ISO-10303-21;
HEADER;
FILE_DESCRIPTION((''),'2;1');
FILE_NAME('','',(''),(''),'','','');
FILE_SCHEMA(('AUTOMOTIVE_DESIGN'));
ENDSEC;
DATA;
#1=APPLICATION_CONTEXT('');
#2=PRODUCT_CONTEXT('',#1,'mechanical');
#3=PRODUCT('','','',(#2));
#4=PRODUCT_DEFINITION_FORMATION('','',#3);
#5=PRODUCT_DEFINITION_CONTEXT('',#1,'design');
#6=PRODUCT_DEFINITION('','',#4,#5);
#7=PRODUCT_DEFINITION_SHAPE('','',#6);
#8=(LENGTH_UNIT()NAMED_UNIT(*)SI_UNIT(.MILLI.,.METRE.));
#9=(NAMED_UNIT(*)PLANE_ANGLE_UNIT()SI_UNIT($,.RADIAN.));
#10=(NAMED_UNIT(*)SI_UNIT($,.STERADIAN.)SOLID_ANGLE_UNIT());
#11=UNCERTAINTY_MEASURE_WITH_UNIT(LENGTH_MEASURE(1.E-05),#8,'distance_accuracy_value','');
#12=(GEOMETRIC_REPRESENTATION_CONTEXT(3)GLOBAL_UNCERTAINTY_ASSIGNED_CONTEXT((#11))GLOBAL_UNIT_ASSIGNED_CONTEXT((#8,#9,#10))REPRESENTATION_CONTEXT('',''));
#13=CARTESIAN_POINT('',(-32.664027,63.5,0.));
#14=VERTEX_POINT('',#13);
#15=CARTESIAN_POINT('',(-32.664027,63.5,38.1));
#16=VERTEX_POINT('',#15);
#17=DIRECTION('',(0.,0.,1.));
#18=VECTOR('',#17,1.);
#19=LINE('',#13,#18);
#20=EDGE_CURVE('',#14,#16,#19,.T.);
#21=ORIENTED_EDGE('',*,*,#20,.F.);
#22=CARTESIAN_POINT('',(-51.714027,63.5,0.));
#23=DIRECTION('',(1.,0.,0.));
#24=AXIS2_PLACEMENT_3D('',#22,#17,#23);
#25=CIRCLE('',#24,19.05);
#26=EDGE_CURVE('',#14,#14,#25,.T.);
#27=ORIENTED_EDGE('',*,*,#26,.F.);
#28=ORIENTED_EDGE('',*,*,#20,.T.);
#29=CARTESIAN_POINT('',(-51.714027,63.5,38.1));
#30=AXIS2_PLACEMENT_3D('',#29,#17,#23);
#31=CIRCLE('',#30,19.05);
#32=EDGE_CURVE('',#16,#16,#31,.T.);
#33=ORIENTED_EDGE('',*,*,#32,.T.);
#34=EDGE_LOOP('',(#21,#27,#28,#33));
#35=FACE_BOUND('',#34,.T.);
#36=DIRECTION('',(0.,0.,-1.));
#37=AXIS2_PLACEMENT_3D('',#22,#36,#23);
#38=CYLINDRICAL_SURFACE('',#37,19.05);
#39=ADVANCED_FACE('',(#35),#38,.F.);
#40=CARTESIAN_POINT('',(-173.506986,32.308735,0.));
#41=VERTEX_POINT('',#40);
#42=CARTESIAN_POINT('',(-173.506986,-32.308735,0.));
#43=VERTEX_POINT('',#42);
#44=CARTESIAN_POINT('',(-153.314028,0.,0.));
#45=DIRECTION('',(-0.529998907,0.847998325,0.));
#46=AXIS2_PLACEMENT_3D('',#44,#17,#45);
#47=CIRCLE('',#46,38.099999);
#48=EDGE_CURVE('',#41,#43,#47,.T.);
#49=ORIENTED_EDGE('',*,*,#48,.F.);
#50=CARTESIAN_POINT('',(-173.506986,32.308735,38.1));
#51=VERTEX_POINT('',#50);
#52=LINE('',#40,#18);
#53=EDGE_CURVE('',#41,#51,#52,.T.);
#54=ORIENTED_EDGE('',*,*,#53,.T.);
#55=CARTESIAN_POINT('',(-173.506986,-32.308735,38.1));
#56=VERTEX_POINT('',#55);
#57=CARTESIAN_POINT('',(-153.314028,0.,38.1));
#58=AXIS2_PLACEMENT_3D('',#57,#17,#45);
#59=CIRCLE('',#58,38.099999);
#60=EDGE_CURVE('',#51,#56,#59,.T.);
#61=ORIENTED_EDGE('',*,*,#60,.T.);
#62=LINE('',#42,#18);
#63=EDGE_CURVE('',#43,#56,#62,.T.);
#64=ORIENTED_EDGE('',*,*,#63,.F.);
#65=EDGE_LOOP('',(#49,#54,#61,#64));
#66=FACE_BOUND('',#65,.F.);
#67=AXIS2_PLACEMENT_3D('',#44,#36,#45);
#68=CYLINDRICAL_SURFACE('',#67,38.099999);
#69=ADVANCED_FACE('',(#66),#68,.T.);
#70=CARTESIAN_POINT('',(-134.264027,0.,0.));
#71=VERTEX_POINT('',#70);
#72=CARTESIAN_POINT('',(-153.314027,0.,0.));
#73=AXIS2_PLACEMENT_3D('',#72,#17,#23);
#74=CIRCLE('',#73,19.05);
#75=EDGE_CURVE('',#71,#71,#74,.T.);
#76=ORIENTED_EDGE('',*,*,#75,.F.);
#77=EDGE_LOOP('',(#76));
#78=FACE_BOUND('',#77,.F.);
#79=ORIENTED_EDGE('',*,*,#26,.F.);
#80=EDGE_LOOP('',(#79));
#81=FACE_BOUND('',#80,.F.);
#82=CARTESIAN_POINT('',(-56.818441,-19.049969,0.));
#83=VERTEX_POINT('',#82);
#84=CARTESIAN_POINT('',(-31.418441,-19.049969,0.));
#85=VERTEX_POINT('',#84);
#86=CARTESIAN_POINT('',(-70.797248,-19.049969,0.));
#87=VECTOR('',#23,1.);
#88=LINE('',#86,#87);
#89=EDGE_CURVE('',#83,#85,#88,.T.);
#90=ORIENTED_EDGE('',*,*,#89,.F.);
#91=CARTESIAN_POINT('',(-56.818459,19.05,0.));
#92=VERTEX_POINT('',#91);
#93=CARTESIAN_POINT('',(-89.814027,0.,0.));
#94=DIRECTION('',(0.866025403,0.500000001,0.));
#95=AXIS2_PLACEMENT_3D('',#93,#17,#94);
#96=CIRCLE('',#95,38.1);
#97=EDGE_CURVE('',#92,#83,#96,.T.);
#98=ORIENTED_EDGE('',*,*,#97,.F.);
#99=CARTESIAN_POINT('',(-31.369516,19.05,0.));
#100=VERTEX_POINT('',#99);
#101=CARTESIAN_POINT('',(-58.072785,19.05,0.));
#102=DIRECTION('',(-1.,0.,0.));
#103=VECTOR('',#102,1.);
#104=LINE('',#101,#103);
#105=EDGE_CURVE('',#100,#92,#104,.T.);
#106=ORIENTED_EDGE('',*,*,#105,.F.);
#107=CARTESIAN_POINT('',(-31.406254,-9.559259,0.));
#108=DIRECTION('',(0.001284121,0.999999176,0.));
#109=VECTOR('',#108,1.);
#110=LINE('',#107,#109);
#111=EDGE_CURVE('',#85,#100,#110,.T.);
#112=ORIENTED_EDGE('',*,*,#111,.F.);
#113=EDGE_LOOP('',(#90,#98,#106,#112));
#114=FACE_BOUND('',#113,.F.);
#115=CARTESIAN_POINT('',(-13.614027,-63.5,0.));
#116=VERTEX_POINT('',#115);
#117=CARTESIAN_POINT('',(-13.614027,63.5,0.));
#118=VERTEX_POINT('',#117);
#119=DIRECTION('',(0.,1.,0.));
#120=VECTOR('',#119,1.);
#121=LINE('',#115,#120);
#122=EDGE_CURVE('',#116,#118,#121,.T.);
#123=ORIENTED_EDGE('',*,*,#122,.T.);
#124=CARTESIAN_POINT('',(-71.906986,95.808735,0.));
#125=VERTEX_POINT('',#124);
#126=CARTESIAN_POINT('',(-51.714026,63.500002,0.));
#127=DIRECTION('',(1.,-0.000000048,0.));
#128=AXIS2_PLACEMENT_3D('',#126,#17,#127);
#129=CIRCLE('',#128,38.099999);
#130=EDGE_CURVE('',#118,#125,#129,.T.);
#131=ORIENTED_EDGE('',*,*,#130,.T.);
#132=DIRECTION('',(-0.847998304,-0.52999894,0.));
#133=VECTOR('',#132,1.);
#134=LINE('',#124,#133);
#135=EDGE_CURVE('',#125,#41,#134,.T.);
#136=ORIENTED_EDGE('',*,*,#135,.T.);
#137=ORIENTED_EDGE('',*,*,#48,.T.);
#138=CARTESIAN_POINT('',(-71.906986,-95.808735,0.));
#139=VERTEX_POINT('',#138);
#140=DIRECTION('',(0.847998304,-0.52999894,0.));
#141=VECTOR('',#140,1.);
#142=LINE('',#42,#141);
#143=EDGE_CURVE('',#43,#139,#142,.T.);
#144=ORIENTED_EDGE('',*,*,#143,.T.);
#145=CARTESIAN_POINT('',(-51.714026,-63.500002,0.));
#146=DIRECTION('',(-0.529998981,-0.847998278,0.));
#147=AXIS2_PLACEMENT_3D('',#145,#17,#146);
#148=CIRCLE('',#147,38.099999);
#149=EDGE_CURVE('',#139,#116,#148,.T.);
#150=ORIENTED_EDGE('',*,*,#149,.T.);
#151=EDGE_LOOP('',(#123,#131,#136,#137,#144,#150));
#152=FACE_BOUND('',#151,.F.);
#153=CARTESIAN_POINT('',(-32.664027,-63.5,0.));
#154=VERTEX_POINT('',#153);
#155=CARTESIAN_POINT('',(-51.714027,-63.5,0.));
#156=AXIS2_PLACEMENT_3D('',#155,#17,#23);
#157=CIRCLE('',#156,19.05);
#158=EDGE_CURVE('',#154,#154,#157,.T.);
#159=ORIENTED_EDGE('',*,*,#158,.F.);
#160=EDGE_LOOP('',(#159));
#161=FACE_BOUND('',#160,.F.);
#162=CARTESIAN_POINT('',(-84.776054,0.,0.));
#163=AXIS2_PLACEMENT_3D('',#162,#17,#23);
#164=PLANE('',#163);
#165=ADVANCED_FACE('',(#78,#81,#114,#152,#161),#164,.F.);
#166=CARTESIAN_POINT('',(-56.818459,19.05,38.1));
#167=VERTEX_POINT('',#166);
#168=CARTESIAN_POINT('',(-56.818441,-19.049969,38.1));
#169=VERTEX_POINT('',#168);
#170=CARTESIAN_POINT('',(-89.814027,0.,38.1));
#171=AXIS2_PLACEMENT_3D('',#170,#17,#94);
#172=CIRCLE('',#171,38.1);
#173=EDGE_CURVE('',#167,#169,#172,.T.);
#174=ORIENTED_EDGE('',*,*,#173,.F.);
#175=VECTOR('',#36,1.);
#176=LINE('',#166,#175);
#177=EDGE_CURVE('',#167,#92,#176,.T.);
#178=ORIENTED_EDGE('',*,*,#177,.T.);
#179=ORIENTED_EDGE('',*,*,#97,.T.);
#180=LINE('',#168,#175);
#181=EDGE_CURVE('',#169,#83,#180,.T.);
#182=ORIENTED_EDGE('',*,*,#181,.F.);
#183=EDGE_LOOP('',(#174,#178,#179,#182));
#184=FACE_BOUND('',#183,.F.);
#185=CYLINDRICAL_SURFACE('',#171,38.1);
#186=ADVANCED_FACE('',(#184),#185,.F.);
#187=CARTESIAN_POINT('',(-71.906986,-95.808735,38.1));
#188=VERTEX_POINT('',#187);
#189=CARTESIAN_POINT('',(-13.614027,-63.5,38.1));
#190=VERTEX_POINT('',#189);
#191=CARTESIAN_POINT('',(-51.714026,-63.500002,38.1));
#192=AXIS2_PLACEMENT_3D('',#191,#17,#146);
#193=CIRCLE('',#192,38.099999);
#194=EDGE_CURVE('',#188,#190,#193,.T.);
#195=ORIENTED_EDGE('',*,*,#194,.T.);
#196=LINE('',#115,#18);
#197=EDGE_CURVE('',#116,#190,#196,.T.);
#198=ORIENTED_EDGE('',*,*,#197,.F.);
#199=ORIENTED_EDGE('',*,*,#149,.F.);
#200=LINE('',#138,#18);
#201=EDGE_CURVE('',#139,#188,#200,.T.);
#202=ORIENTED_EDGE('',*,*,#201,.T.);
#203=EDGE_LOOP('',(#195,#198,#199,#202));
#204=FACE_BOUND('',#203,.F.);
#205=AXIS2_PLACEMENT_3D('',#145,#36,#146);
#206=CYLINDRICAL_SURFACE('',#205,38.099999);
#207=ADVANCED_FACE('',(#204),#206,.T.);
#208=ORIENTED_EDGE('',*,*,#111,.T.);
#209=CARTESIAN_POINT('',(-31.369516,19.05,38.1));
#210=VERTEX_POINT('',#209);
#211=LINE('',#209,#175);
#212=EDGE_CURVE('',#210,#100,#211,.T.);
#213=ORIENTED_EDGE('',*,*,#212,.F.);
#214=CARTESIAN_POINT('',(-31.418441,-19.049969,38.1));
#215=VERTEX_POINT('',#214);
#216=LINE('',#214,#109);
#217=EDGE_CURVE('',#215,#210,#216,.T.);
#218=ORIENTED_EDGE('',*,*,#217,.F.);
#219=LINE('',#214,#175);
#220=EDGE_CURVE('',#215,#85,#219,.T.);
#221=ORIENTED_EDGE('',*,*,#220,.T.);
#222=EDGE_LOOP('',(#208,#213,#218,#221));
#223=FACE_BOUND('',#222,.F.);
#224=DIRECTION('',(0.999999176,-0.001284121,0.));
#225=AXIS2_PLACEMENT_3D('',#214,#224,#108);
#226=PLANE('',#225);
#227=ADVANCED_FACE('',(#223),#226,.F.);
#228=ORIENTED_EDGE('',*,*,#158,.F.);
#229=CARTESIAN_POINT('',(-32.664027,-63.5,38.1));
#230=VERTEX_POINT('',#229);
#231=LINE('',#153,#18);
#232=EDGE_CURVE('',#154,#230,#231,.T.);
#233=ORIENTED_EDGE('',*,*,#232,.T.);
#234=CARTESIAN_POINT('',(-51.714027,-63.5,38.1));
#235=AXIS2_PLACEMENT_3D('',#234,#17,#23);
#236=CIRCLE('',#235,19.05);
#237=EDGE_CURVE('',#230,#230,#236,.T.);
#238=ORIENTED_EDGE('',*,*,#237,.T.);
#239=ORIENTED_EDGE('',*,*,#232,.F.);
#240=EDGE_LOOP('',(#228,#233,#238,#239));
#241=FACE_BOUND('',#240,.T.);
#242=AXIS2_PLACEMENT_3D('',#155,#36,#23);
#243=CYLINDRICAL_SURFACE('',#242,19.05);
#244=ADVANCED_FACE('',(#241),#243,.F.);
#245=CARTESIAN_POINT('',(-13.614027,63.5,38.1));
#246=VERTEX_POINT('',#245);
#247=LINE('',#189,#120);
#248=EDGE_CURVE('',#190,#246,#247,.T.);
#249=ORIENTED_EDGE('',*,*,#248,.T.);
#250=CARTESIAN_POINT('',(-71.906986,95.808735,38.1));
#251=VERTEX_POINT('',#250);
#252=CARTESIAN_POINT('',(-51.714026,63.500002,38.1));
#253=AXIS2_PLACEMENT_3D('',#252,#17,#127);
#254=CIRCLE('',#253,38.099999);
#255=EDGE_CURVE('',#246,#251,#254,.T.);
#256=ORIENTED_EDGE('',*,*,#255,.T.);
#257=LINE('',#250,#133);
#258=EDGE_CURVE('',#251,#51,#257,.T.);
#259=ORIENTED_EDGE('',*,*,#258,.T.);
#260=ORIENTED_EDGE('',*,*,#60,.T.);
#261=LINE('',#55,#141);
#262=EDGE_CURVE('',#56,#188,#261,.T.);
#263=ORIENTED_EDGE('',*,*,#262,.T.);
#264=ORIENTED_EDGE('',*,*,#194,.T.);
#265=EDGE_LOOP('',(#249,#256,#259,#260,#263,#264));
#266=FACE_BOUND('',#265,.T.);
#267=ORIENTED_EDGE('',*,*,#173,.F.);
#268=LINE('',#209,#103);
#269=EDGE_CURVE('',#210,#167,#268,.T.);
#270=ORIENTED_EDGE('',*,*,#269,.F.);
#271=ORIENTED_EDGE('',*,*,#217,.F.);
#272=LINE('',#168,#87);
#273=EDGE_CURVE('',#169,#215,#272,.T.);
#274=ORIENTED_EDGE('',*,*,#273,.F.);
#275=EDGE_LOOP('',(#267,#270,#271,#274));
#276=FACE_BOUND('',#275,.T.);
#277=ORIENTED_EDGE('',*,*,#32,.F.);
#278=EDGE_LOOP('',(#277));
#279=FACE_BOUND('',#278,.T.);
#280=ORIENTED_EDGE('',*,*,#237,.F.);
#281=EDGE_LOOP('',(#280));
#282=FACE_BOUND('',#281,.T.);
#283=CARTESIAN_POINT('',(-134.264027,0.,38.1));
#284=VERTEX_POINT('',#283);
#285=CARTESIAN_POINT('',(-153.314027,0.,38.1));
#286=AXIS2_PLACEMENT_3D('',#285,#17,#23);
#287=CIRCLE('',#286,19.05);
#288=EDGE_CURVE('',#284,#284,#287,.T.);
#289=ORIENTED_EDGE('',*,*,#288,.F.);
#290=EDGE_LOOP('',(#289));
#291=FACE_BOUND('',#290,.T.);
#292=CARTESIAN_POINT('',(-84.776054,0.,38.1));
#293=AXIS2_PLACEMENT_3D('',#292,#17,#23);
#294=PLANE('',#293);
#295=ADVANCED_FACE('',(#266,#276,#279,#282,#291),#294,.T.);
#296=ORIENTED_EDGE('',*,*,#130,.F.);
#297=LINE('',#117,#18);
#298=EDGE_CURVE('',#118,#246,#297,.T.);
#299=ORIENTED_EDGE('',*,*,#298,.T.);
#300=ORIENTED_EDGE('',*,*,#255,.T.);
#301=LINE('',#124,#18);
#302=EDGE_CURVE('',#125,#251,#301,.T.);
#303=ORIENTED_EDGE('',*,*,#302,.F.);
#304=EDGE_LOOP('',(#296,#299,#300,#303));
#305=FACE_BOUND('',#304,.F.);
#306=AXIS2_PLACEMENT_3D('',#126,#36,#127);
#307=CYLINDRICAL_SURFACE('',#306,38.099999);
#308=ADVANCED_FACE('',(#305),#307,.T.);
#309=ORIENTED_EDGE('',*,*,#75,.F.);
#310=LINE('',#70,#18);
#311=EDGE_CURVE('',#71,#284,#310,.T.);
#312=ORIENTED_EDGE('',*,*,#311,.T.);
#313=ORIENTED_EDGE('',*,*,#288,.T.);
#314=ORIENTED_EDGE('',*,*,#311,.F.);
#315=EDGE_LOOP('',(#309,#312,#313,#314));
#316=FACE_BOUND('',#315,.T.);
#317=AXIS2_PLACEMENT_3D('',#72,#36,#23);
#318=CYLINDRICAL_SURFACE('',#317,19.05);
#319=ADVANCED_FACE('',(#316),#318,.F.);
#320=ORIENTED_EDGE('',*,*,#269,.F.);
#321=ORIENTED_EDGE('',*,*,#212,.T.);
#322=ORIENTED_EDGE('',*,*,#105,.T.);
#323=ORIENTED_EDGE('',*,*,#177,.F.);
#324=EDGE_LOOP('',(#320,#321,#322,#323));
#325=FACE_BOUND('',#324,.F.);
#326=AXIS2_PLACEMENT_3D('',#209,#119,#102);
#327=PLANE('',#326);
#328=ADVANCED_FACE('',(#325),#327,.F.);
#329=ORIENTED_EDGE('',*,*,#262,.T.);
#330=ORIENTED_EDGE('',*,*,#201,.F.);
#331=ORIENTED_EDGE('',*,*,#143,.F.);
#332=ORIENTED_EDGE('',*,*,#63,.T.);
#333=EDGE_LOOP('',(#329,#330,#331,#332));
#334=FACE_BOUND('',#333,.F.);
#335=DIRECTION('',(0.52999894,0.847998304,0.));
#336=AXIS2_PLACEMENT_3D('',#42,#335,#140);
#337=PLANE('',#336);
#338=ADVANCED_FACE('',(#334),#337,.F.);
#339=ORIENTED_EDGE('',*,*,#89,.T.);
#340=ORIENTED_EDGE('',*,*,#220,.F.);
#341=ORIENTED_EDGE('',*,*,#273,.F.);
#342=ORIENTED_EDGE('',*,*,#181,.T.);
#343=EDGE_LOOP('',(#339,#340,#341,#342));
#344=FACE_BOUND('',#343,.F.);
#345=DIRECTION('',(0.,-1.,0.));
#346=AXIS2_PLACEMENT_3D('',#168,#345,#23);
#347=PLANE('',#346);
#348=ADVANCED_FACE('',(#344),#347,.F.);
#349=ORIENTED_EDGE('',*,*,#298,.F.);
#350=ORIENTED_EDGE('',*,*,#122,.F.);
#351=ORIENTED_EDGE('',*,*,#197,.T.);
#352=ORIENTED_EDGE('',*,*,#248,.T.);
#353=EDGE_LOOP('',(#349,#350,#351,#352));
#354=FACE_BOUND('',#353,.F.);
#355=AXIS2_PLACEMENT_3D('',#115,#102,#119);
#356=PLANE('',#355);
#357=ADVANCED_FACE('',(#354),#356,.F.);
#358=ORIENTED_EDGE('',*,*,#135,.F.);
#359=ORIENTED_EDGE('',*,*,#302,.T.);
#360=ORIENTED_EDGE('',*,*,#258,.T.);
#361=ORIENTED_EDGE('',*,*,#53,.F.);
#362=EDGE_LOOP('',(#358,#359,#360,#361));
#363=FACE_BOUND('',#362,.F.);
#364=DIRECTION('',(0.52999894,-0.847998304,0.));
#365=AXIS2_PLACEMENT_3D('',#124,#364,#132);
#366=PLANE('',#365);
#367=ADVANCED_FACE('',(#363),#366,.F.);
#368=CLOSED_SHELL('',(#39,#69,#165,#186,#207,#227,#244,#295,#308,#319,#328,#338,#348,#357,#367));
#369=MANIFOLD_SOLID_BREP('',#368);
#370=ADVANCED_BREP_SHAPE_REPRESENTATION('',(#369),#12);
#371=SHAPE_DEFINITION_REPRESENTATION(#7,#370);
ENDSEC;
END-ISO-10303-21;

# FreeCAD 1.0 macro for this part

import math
import FreeCAD as App
import Part
import Sketcher

V = App.Vector
Q = App.Units.Quantity

doc = App.newDocument("Part")
body = doc.addObject("PartDesign::Body", "Body")

# Sketch on XY plane
sketch1 = body.newObject("Sketcher::SketchObject", "Sketch")
sketch1.AttachmentSupport = (doc.getObject("XY_Plane"), [""])
sketch1.MapMode = "FlatFace"
sketch1.addGeometry([
    Part.LineSegment(V(-71.906986, 95.808735, 0), V(-173.506986, 32.308735, 0)),  # 0
    Part.ArcOfCircle(Part.Circle(V(-153.314028, 0, 0), V(0, 0, 1), 38.099999), math.radians(122.005381), math.radians(237.994619)),  # 1
    Part.LineSegment(V(-173.506986, -32.308735, 0), V(-71.906986, -95.808735, 0)),  # 2
    Part.ArcOfCircle(Part.Circle(V(-51.714026, -63.500002, 0), V(0, 0, 1), 38.099999), math.radians(-122.005386), math.radians(0.000003)),  # 3
    Part.LineSegment(V(-13.614027, -63.5, 0), V(-13.614027, 63.5, 0)),  # 4
    Part.ArcOfCircle(Part.Circle(V(-51.714026, 63.500002, 0), V(0, 0, 1), 38.099999), math.radians(-0.000003), math.radians(122.005386)),  # 5
    Part.Circle(V(-51.714027, -63.5, 0), V(0, 0, 1), 19.05),  # 6
    Part.Circle(V(-153.314027, 0, 0), V(0, 0, 1), 19.05),  # 7
    Part.Circle(V(-51.714027, 63.5, 0), V(0, 0, 1), 19.05),  # 8
], False)
sketch1.addConstraint([
    Sketcher.Constraint("Tangent", 0, 2, 1, 1),
    Sketcher.Constraint("Tangent", 1, 2, 2, 1),
    Sketcher.Constraint("Tangent", 2, 2, 3, 1),
    Sketcher.Constraint("Tangent", 3, 2, 4, 1),
    Sketcher.Constraint("Tangent", 4, 2, 5, 1),
    Sketcher.Constraint("Tangent", 5, 2, 0, 1),
    Sketcher.Constraint("Vertical", 4),
    Sketcher.Constraint("Coincident", 6, 3, 3, 3),
    Sketcher.Constraint("Coincident", 7, 3, 1, 3),
    Sketcher.Constraint("Coincident", 8, 3, 5, 3),
    Sketcher.Constraint("Equal", 1, 3),
    Sketcher.Constraint("Equal", 3, 5),
    Sketcher.Constraint("Equal", 6, 7),
    Sketcher.Constraint("Equal", 7, 8),
    Sketcher.Constraint("Symmetric", 0, 2, 1, 2, -1),
    Sketcher.Constraint("Diameter", 6, Q("1.5 in")),
    Sketcher.Constraint("Radius", 1, Q("1.4999999 in")),
    Sketcher.Constraint("DistanceY", 4, 1, 4, 2, Q("5 in")),
    Sketcher.Constraint("DistanceX", 1, 3, 3, 3, Q("4.0000001 in")),
    Sketcher.Constraint("DistanceX", 1, 3, -1, 1, Q("153.314028 mm")),
])
pad1 = body.newObject("PartDesign::Pad", "Pad")
pad1.Profile = sketch1
pad1.Length = Q("1.5 in")

# Sketch on XY plane
sketch2 = body.newObject("Sketcher::SketchObject", "Sketch001")
sketch2.AttachmentSupport = (doc.getObject("XY_Plane"), [""])
sketch2.MapMode = "FlatFace"
sketch2.AttachmentOffset = App.Placement(V(0, 0, 1.5 * 25.4), App.Rotation())
sketch2.addGeometry([
    Part.LineSegment(V(-31.369516, 19.05, 0), V(-56.818459, 19.05, 0)),
    Part.ArcOfCircle(Part.Circle(V(-89.814027, 0, 0), V(0, 0, 1), 38.1), math.radians(30), math.radians(330.000054)),
    Part.LineSegment(V(-56.818441, -19.049969, 0), V(-31.418441, -19.049969, 0)),
    Part.LineSegment(V(-31.418441, -19.049969, 0), V(-31.369516, 19.05, 0)),
], False)
sketch2.addConstraint([
    Sketcher.Constraint("Coincident", 0, 2, 1, 1),
    Sketcher.Constraint("Coincident", 1, 2, 2, 1),
    Sketcher.Constraint("Coincident", 2, 2, 3, 1),
    Sketcher.Constraint("Coincident", 3, 2, 0, 1),
    Sketcher.Constraint("Horizontal", 0),
    Sketcher.Constraint("Horizontal", 2),
    Sketcher.Constraint("PointOnObject", 1, 3, -1),
    Sketcher.Constraint("Radius", 1, Q("1.5 in")),
    Sketcher.Constraint("DistanceX", 2, 1, 2, 2, Q("1 in")),
    Sketcher.Constraint("Distance", 3, Q("1.5 in")),
    Sketcher.Constraint("DistanceY", -1, 1, 0, 2, Q("0.75 in")),
    Sketcher.Constraint("DistanceX", 0, 2, 0, 1, Q("25.448943 mm")),
    Sketcher.Constraint("DistanceX", 0, 2, -1, 1, Q("56.818459 mm")),
])
pocket1 = body.newObject("PartDesign::Pocket", "Pocket")
pocket1.Profile = sketch2
pocket1.Type = "ThroughAll"

doc.recompute()
